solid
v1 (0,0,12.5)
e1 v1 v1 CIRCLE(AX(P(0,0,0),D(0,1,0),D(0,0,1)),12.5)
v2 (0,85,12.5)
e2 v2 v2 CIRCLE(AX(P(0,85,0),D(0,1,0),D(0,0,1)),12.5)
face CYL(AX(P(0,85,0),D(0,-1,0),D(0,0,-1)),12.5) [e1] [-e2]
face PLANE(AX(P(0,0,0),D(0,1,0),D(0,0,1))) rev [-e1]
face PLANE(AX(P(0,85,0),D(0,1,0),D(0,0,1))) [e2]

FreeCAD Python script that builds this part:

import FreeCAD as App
import Part
import Sketcher
from FreeCAD import Vector

doc = App.newDocument("Part")
params = doc.addObject("Spreadsheet::Sheet", "Params")
for row, (alias, value) in enumerate([
    ("sketch1_diameter", "25 mm"),
    ("pad1_length", "85 mm"),
], start=1):
    params.set(f"A{row}", alias)
    params.set(f"B{row}", "=" + value)
    params.setAlias(f"B{row}", alias)

body = doc.addObject("PartDesign::Body", "Body")

# Sketch on XZ plane
sketch1 = doc.addObject("Sketcher::SketchObject", "Sketch")
body.addObject(sketch1)
sketch1.AttachmentSupport = (doc.XZ_Plane, [""])
sketch1.MapMode = "FlatFace"
sketch1.addGeometry(Part.Circle(Vector(0, 0, 0), Vector(0, 0, 1), 12.5), False)
sketch1.addConstraint([
    Sketcher.Constraint("Coincident", 0, 3, -1, 1),
    Sketcher.Constraint("Diameter", 0, 25.0),
])
sketch1.setExpression("Constraints[1]", "Params.sketch1_diameter")
pad1 = doc.addObject("PartDesign::Pad", "Pad")
body.addObject(pad1)
pad1.Profile = sketch1
pad1.setExpression("Length", "Params.pad1_length")
pad1.Reversed = True

doc.recompute()
